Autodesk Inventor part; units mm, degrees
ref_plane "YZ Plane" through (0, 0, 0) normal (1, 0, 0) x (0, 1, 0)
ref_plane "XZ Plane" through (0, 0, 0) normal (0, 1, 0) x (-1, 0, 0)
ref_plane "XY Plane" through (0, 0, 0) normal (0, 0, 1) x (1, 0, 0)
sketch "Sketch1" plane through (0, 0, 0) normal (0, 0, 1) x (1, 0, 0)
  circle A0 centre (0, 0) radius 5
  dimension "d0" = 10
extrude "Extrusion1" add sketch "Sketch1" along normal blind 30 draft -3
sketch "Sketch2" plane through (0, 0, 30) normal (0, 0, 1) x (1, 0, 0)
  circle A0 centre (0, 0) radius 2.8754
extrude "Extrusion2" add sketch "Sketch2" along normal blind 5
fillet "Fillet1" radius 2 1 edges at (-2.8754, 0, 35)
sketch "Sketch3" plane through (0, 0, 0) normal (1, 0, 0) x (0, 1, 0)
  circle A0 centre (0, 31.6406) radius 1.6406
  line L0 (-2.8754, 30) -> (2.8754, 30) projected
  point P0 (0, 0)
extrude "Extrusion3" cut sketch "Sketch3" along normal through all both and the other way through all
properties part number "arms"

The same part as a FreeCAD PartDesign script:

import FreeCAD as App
import Part
import Sketcher
from FreeCAD import Vector


def edges_at(feature, points):
    """Names of the edges that pass closest to the given points."""
    edges = feature.Shape.Edges
    near = lambda p: min(range(len(edges)), key=lambda i: edges[i].distToShape(Part.Vertex(*p))[0])
    return sorted({f"Edge{near(p) + 1}" for p in points})

doc = App.newDocument("Part")
params = doc.addObject("Spreadsheet::Sheet", "Params")
for row, (alias, value) in enumerate([
    ("sketch1_diameter", "10 mm"),
    ("pad1_length", "30 mm"),
    ("pad1_taper", "-3 deg"),
    ("pad2_length", "5 mm"),
    ("fillet_radius", "2 mm"),
], start=1):
    params.set(f"A{row}", alias)
    params.set(f"B{row}", "=" + value)
    params.setAlias(f"B{row}", alias)

body = doc.addObject("PartDesign::Body", "Body")

# Sketch on XY plane
sketch1 = body.newObject("Sketcher::SketchObject", "Sketch")
sketch1.AttachmentSupport = (doc.getObject("XY_Plane"), [""])
sketch1.MapMode = "FlatFace"
sketch1.addGeometry(Part.Circle(Vector(0, 0, 0), Vector(0, 0, 1), 5), False)
sketch1.addConstraint(Sketcher.Constraint("Coincident", 0, 3, -1, 1))
sketch1.addConstraint(Sketcher.Constraint("Diameter", 0, 10.0))
sketch1.setExpression("Constraints[1]", "Params.sketch1_diameter")
pad1 = body.newObject("PartDesign::Pad", "Pad")
pad1.Profile = sketch1
pad1.setExpression("Length", "Params.pad1_length")
pad1.setExpression("TaperAngle", "Params.pad1_taper")

# Sketch on XY plane
sketch2 = body.newObject("Sketcher::SketchObject", "Sketch001")
sketch2.AttachmentSupport = (doc.getObject("XY_Plane"), [""])
sketch2.MapMode = "FlatFace"
sketch2.AttachmentOffset = App.Placement(Vector(0, 0, 30), App.Rotation())
sketch2.addGeometry(Part.Circle(Vector(0, 0, 0), Vector(0, 0, 1), 2.8754), False)
sketch2.addConstraint(Sketcher.Constraint("Coincident", 0, 3, -1, 1))
sketch2.addConstraint(Sketcher.Constraint("Diameter", 0, 5.7508))
pad2 = body.newObject("PartDesign::Pad", "Pad001")
pad2.Profile = sketch2
pad2.setExpression("Length", "Params.pad2_length")
doc.recompute()

fillet = body.newObject("PartDesign::Fillet", "Fillet")
fillet.Base = (pad2, edges_at(pad2, [(-2.875, 0, 35)]))
fillet.setExpression("Radius", "Params.fillet_radius")

# Sketch on YZ plane
sketch3 = body.newObject("Sketcher::SketchObject", "Sketch002")
sketch3.AttachmentSupport = (doc.getObject("YZ_Plane"), [""])
sketch3.MapMode = "FlatFace"
sketch3.addGeometry(Part.Circle(Vector(0, 31.6406, 0), Vector(0, 0, 1), 1.6406), False)
sketch3.addConstraint(Sketcher.Constraint("PointOnObject", 0, 3, -2))
sketch3.addConstraint(Sketcher.Constraint("Diameter", 0, 3.2812))
sketch3.addConstraint(Sketcher.Constraint("DistanceY", -1, 1, 0, 3, 31.6406))
pocket1 = body.newObject("PartDesign::Pocket", "Pocket")
pocket1.Profile = sketch3
pocket1.Type = "ThroughAll"
pocket1.Midplane = True

doc.recompute()
